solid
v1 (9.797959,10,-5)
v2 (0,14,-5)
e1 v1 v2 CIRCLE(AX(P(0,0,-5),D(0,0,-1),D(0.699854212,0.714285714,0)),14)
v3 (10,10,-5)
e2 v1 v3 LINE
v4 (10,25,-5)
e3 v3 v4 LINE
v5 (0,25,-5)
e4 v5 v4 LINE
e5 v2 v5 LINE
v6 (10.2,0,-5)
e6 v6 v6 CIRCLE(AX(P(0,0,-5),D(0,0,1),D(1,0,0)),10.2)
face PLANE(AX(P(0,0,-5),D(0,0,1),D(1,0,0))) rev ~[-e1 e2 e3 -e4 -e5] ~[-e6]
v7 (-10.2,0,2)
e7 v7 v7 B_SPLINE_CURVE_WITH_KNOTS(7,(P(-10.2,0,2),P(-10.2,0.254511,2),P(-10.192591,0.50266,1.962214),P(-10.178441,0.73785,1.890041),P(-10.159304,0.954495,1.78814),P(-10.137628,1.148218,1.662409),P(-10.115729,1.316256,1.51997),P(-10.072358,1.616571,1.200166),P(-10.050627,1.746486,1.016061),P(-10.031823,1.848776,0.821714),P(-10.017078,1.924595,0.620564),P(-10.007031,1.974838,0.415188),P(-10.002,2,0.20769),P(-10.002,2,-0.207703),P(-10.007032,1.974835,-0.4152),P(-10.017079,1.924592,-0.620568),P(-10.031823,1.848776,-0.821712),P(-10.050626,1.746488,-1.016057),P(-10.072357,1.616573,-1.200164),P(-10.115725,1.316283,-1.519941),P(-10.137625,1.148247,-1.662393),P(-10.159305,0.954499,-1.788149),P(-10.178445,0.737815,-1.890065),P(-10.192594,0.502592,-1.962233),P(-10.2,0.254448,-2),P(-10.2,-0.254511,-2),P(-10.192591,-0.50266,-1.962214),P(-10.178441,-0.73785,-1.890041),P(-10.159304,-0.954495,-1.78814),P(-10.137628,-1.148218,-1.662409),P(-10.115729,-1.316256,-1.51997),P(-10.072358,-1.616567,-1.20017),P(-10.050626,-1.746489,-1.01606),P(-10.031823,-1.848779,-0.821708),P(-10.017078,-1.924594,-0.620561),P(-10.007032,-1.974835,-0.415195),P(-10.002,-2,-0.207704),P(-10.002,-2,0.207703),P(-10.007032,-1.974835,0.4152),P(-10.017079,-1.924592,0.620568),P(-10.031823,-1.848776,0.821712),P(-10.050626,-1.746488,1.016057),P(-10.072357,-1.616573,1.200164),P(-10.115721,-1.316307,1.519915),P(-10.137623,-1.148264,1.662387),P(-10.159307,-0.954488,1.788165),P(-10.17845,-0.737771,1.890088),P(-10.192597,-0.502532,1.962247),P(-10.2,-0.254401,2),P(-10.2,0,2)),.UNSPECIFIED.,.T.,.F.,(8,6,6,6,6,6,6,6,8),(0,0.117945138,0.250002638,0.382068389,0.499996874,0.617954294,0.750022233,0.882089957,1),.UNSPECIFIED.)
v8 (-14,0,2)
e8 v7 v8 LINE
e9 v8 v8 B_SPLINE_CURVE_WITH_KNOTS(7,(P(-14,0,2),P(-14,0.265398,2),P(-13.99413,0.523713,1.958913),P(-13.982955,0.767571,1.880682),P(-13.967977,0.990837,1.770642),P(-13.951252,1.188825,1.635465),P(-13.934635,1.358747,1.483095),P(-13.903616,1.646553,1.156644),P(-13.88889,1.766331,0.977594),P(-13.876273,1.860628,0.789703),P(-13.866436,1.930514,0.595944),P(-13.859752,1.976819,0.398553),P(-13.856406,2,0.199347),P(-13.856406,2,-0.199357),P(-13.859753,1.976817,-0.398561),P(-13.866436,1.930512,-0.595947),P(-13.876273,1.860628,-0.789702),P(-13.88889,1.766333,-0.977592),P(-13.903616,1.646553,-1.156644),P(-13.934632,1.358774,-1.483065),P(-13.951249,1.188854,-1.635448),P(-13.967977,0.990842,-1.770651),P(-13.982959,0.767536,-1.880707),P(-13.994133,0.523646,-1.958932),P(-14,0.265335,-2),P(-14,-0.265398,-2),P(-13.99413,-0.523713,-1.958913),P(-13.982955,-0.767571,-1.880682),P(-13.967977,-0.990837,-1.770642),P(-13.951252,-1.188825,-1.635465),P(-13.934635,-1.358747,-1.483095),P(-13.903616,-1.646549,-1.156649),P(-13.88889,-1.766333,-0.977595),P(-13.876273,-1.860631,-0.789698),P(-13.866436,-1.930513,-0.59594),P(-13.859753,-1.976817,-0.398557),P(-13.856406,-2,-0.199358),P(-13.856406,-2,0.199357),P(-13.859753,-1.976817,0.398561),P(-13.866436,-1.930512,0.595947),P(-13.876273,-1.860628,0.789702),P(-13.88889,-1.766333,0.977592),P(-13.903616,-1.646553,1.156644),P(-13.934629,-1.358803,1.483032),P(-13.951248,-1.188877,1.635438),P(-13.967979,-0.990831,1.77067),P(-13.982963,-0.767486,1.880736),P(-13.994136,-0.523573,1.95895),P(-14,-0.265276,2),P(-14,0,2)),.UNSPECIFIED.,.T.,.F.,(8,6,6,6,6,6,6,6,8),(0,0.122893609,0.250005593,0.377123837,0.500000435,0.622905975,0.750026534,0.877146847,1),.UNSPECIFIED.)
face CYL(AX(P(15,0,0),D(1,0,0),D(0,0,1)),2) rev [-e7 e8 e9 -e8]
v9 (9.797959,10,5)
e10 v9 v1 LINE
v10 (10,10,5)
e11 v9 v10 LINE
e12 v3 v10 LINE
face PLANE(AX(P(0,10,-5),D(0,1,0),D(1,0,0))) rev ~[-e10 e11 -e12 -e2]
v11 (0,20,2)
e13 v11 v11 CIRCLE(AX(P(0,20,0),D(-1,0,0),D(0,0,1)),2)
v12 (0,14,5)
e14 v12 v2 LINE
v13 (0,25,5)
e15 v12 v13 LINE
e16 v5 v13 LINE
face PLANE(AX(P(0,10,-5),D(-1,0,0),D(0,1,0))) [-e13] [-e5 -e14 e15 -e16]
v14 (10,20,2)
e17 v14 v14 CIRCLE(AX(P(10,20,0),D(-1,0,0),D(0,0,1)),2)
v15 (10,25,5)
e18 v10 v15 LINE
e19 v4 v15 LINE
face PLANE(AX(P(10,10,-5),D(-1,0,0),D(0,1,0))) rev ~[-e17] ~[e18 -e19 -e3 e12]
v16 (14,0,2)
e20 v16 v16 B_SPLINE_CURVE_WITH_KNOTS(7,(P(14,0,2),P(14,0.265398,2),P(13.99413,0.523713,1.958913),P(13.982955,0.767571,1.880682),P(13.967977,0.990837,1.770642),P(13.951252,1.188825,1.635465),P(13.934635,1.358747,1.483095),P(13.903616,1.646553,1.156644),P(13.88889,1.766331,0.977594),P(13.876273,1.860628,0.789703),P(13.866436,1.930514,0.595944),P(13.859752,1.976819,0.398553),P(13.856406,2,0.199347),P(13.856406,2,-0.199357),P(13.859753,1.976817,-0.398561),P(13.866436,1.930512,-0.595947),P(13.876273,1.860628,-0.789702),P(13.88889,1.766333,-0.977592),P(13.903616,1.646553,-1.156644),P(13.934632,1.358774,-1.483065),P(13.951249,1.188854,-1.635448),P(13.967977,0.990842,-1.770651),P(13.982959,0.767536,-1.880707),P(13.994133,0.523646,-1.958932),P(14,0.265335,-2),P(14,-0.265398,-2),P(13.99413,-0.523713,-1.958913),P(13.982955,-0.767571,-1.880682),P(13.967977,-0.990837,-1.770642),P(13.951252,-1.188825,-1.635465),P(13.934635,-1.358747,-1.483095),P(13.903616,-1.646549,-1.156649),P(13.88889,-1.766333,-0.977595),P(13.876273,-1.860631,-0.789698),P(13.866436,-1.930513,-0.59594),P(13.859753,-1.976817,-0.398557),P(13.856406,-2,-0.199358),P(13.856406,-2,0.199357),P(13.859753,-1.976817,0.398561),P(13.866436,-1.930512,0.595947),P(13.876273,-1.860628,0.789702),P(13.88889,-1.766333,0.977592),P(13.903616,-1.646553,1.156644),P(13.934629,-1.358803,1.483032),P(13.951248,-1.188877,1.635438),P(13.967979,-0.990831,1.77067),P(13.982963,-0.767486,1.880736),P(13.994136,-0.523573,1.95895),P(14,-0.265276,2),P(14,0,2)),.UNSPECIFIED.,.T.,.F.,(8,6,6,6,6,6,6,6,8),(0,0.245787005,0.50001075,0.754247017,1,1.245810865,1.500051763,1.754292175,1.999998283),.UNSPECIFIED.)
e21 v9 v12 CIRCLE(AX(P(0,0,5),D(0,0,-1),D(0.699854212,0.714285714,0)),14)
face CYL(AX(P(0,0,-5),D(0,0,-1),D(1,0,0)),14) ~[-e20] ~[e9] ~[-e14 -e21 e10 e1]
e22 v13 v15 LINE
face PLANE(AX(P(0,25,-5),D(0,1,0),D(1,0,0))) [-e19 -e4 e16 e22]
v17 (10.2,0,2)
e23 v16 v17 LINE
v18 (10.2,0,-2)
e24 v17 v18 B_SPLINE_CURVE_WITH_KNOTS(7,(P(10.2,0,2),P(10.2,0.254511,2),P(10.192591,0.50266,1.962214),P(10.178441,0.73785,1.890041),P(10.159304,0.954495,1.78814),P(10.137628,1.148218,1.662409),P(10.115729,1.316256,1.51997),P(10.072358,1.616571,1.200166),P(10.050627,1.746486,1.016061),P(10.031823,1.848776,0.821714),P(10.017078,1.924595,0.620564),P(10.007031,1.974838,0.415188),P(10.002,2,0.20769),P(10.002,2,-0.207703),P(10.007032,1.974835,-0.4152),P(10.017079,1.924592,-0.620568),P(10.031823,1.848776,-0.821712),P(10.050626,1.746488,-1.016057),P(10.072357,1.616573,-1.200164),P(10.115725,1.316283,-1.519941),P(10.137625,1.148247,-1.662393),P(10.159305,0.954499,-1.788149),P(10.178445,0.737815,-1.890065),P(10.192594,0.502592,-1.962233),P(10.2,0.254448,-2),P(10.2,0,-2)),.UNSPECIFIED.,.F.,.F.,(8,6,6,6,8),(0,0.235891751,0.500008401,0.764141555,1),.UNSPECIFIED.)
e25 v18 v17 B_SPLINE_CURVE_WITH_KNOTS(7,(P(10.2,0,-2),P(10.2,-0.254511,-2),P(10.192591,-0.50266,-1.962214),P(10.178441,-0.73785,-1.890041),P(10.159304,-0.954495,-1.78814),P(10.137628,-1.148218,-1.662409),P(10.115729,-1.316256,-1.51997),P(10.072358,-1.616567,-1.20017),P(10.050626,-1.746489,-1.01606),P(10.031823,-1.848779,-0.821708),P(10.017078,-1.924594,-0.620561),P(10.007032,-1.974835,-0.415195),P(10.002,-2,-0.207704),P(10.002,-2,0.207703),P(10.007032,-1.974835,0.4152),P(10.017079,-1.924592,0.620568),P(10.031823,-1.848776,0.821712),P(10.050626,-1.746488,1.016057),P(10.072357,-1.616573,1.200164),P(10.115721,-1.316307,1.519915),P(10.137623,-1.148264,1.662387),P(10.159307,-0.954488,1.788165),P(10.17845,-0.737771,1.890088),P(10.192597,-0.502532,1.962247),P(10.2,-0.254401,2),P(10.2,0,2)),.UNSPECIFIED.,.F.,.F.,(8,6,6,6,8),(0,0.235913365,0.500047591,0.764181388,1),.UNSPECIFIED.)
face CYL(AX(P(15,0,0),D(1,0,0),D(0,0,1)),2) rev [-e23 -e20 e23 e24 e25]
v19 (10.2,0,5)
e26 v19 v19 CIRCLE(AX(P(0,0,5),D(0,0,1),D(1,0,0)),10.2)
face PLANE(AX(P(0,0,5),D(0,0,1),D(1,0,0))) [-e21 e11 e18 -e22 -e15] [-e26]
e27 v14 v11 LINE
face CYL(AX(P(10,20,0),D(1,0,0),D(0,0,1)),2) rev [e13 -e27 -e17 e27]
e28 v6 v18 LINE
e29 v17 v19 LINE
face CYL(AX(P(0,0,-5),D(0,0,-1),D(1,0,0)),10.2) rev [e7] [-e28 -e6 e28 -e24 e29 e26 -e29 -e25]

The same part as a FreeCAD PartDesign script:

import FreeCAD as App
import Part
import Sketcher

V = App.Vector
Q = App.Units.Quantity


def add_polygon(sketch, points):
    """Adds a closed chain of lines whose ends are joined by coincident constraints."""
    first, n = sketch.GeometryCount, len(points)
    for a, b in zip(points, points[1:] + points[:1]):
        sketch.addGeometry(Part.LineSegment(App.Vector(*a, 0), App.Vector(*b, 0)), False)
    for i in range(n):
        sketch.addConstraint(Sketcher.Constraint("Coincident", first + i, 2, first + (i + 1) % n, 1))

doc = App.newDocument("Part")
body = doc.addObject("PartDesign::Body", "Body")

# Sketch on XY plane
sketch1 = body.newObject("Sketcher::SketchObject", "Sketch")
sketch1.AttachmentSupport = (doc.getObject("XY_Plane"), [""])
sketch1.MapMode = "FlatFace"
sketch1.addGeometry(Part.Circle(V(0, 0, 0), V(0, 0, 1), 2), False)
sketch1.addConstraint([
    Sketcher.Constraint("Coincident", 0, 3, -1, 1),
    Sketcher.Constraint("Diameter", 0, Q("4 mm")),
])
pad1 = body.newObject("PartDesign::Pad", "Pad")
pad1.Profile = sketch1
pad1.Length = 10
body2 = doc.addObject("PartDesign::Body", "Body001")
doc.recompute()

body.Placement = App.Placement(V(0, 0, 0), App.Rotation(V(0, 1, 0), 270))
boolean = body2.newObject("PartDesign::Boolean", "Boolean")
boolean.Type = "Fuse"
boolean.addObjects([body])
body3 = doc.addObject("PartDesign::Body", "Body002")
doc.recompute()

body2.Placement = App.Placement(V(10, 20, 0), App.Rotation(V(0, 0, 1), 0))
boolean2 = body3.newObject("PartDesign::Boolean", "Boolean001")
boolean2.Type = "Fuse"
boolean2.addObjects([body2])
body4 = doc.addObject("PartDesign::Body", "Body003")

# Sketch on XY plane
sketch2 = body4.newObject("Sketcher::SketchObject", "Sketch001")
sketch2.AttachmentSupport = (doc.getObject("XY_Plane003"), [""])
sketch2.MapMode = "FlatFace"
sketch2.addGeometry(Part.Circle(V(0, 0, 0), V(0, 0, 1), 2), False)
sketch2.addConstraint([
    Sketcher.Constraint("Coincident", 0, 3, -1, 1),
    Sketcher.Constraint("Diameter", 0, Q("4 mm")),
])
pad2 = body4.newObject("PartDesign::Pad", "Pad001")
pad2.Profile = sketch2
pad2.Length = 30
body5 = doc.addObject("PartDesign::Body", "Body004")
doc.recompute()

body4.Placement = App.Placement(V(0, 0, 0), App.Rotation(V(0, 1, 0), 270))
boolean3 = body5.newObject("PartDesign::Boolean", "Boolean002")
boolean3.Type = "Fuse"
boolean3.addObjects([body4])
body6 = doc.addObject("PartDesign::Body", "Body005")
doc.recompute()

body5.Placement = App.Placement(V(15, 0, 0), App.Rotation(V(0, 0, 1), 0))
boolean4 = body6.newObject("PartDesign::Boolean", "Boolean003")
boolean4.Type = "Fuse"
boolean4.addObjects([body5])
body7 = doc.addObject("PartDesign::Body", "Body006")
body7.AllowCompound = True

# Sketch on XY plane
sketch3 = body7.newObject("Sketcher::SketchObject", "Sketch002")
sketch3.AttachmentSupport = (doc.getObject("XY_Plane006"), [""])
sketch3.MapMode = "FlatFace"
sketch3.AttachmentOffset = App.Placement(V(0, 0, -5), App.Rotation())
sketch3.addGeometry(Part.Circle(V(0, 0, 0), V(0, 0, 1), 10.2), False)
sketch3.addConstraint([
    Sketcher.Constraint("Coincident", 0, 3, -1, 1),
    Sketcher.Constraint("Diameter", 0, Q("20.4 mm")),
])
pad3 = body7.newObject("PartDesign::Pad", "Pad002")
pad3.Profile = sketch3
pad3.Length = 10
doc.recompute()

boolean5 = body7.newObject("PartDesign::Boolean", "Boolean004")
boolean5.Type = "Fuse"
boolean5.addObjects([body3])
doc.recompute()

boolean6 = body7.newObject("PartDesign::Boolean", "Boolean005")
boolean6.Type = "Fuse"
boolean6.addObjects([body6])
body8 = doc.addObject("PartDesign::Body", "Body007")

# Sketch on XY plane
sketch4 = body8.newObject("Sketcher::SketchObject", "Sketch003")
sketch4.AttachmentSupport = (doc.getObject("XY_Plane007"), [""])
sketch4.MapMode = "FlatFace"
sketch4.AttachmentOffset = App.Placement(V(0, 0, -5), App.Rotation())
add_polygon(sketch4, [(0, 25), (0, 10), (10, 10), (10, 25)])  # lines 0-3
sketch4.addConstraint([
    Sketcher.Constraint("Vertical", 0),
    Sketcher.Constraint("Horizontal", 1),
    Sketcher.Constraint("Vertical", 2),
    Sketcher.Constraint("Horizontal", 3),
    Sketcher.Constraint("PointOnObject", 0, 2, -2),
    Sketcher.Constraint("DistanceX", 1, 1, 1, 2, Q("10 mm")),
    Sketcher.Constraint("DistanceY", 0, 2, 0, 1, Q("15 mm")),
    Sketcher.Constraint("DistanceY", -1, 1, 0, 2, Q("10 mm")),
])
pad4 = body8.newObject("PartDesign::Pad", "Pad003")
pad4.Profile = sketch4
pad4.Length = 10
body9 = doc.addObject("PartDesign::Body", "Body008")

# Sketch on XY plane
sketch5 = body9.newObject("Sketcher::SketchObject", "Sketch004")
sketch5.AttachmentSupport = (doc.getObject("XY_Plane008"), [""])
sketch5.MapMode = "FlatFace"
sketch5.AttachmentOffset = App.Placement(V(0, 0, -5), App.Rotation())
sketch5.addGeometry(Part.Circle(V(0, 0, 0), V(0, 0, 1), 14), False)
sketch5.addConstraint([
    Sketcher.Constraint("Coincident", 0, 3, -1, 1),
    Sketcher.Constraint("Diameter", 0, Q("28 mm")),
])
pad5 = body9.newObject("PartDesign::Pad", "Pad004")
pad5.Profile = sketch5
pad5.Length = 10
doc.recompute()

boolean7 = body9.newObject("PartDesign::Boolean", "Boolean006")
boolean7.Type = "Fuse"
boolean7.addObjects([body8])
doc.recompute()

boolean8 = body9.newObject("PartDesign::Boolean", "Boolean007")
boolean8.Type = "Cut"
boolean8.addObjects([body7])

doc.recompute()
